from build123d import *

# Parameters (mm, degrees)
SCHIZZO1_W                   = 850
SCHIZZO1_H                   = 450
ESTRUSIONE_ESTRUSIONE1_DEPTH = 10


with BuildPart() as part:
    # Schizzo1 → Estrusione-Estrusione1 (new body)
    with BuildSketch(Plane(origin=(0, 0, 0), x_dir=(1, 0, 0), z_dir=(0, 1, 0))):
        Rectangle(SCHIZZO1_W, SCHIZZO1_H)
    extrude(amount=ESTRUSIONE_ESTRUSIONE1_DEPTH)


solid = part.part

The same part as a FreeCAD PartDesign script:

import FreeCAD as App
import Part
import Sketcher

V = App.Vector
Q = App.Units.Quantity


def add_polygon(sketch, points):
    """Adds a closed chain of lines whose ends are joined by coincident constraints."""
    first, n = sketch.GeometryCount, len(points)
    for a, b in zip(points, points[1:] + points[:1]):
        sketch.addGeometry(Part.LineSegment(App.Vector(*a, 0), App.Vector(*b, 0)), False)
    for i in range(n):
        sketch.addConstraint(Sketcher.Constraint("Coincident", first + i, 2, first + (i + 1) % n, 1))

doc = App.newDocument("Part")
body = doc.addObject("PartDesign::Body", "Body")

# Sketch on XZ plane
sketch1 = body.newObject("Sketcher::SketchObject", "Sketch")
sketch1.AttachmentSupport = (doc.getObject("XZ_Plane"), [""])
sketch1.MapMode = "FlatFace"
add_polygon(sketch1, [(-425, -225), (-425, 225), (425, 225), (425, -225)])  # lines 0-3
sketch1.addConstraint([
    Sketcher.Constraint("Vertical", 0),
    Sketcher.Constraint("Horizontal", 1),
    Sketcher.Constraint("Vertical", 2),
    Sketcher.Constraint("Horizontal", 3),
    Sketcher.Constraint("Symmetric", 0, 2, 2, 2, -1, 1),
    Sketcher.Constraint("DistanceX", 1, 1, 1, 2, Q("850 mm")),
    Sketcher.Constraint("DistanceY", 0, 1, 0, 2, Q("450 mm")),
])
pad1 = body.newObject("PartDesign::Pad", "Pad")
pad1.Profile = sketch1
pad1.Length = 10
pad1.Reversed = True

doc.recompute()
